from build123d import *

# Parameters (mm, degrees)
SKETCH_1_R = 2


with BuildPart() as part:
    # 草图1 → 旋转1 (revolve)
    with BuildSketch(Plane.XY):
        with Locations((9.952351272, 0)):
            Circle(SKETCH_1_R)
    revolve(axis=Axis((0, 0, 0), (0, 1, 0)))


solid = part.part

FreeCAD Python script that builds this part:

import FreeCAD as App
import Part
import Sketcher

doc = App.newDocument("Part")
params = doc.addObject("Spreadsheet::Sheet", "Params")
for row, (alias, value) in enumerate([
    ("sketch1_diameter", "4 mm"),
    ("revolution_angle", "360 deg"),
], start=1):
    params.set(f"A{row}", alias)
    params.set(f"B{row}", "=" + value)
    params.setAlias(f"B{row}", alias)

body = doc.addObject("PartDesign::Body", "Body")

sketch1 = doc.addObject("Sketcher::SketchObject", "Sketch")
body.addObject(sketch1)
sketch1.AttachmentSupport = (doc.XY_Plane, [""])
sketch1.MapMode = "FlatFace"
sketch1.addGeometry(Part.Circle(App.Vector(10, 0, 0), App.Vector(0, 0, 1), 2), False)
sketch1.addConstraint([
    Sketcher.Constraint("PointOnObject", 0, 3, -1),
    Sketcher.Constraint("Diameter", 0, 4.0),
    Sketcher.Constraint("DistanceX", -1, 1, 0, 3, 9.952351),
])
sketch1.setExpression("Constraints[1]", "Params.sketch1_diameter")
revolution = doc.addObject("PartDesign::Revolution", "Revolution")
body.addObject(revolution)
revolution.Profile = sketch1
revolution.ReferenceAxis = (sketch1, ["V_Axis"])
revolution.setExpression("Angle", "Params.revolution_angle")

doc.recompute()
